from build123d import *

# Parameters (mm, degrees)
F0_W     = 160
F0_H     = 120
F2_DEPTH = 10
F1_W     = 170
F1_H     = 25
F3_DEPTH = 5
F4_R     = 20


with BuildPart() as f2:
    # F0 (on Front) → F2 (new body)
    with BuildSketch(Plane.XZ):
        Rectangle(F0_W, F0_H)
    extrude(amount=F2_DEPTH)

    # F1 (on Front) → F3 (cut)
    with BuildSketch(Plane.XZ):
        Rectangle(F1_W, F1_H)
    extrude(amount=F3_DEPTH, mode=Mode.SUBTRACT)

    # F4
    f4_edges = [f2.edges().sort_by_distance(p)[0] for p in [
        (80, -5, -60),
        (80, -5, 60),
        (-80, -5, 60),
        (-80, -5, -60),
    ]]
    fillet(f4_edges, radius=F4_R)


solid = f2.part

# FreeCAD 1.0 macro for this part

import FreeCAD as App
import Part
import Sketcher


def edges_at(feature, points):
    """Names of the edges that pass closest to the given points."""
    edges = feature.Shape.Edges
    near = lambda p: min(range(len(edges)), key=lambda i: edges[i].distToShape(Part.Vertex(*p))[0])
    return sorted({f"Edge{near(p) + 1}" for p in points})


def add_polygon(sketch, points):
    """Adds a closed chain of lines whose ends are joined by coincident constraints."""
    first, n = sketch.GeometryCount, len(points)
    for a, b in zip(points, points[1:] + points[:1]):
        sketch.addGeometry(Part.LineSegment(App.Vector(*a, 0), App.Vector(*b, 0)), False)
    for i in range(n):
        sketch.addConstraint(Sketcher.Constraint("Coincident", first + i, 2, first + (i + 1) % n, 1))

doc = App.newDocument("Part")
body = doc.addObject("PartDesign::Body", "Body")

sketch1 = doc.addObject("Sketcher::SketchObject", "Sketch")
body.addObject(sketch1)
sketch1.AttachmentSupport = (doc.XZ_Plane, [""])
sketch1.MapMode = "FlatFace"
add_polygon(sketch1, [(-80, 60), (-80, -60), (80, -60), (80, 60)])
sketch1.addConstraint([
    Sketcher.Constraint("Vertical", 0),
    Sketcher.Constraint("Horizontal", 1),
    Sketcher.Constraint("Vertical", 2),
    Sketcher.Constraint("Horizontal", 3),
    Sketcher.Constraint("Symmetric", 0, 2, 2, 2, -1, 1),
    Sketcher.Constraint("DistanceX", 1, 1, 1, 2, 160.0),
    Sketcher.Constraint("DistanceY", 0, 2, 0, 1, 120.0),
])
pad1 = doc.addObject("PartDesign::Pad", "Pad")
body.addObject(pad1)
pad1.Profile = sketch1
pad1.Length = 10

sketch2 = doc.addObject("Sketcher::SketchObject", "Sketch001")
body.addObject(sketch2)
sketch2.AttachmentSupport = (doc.XZ_Plane, [""])
sketch2.MapMode = "FlatFace"
add_polygon(sketch2, [(-85, 12), (-85, -12), (85, -12), (85, 12)])
sketch2.addConstraint([
    Sketcher.Constraint("Vertical", 0),
    Sketcher.Constraint("Horizontal", 1),
    Sketcher.Constraint("Vertical", 2),
    Sketcher.Constraint("Horizontal", 3),
    Sketcher.Constraint("Symmetric", 0, 2, 2, 2, -1, 1),
    Sketcher.Constraint("DistanceX", 1, 1, 1, 2, 170.0),
    Sketcher.Constraint("DistanceY", 0, 2, 0, 1, 25.0),
])
pocket1 = doc.addObject("PartDesign::Pocket", "Pocket")
body.addObject(pocket1)
pocket1.Profile = sketch2
pocket1.Length = 5
pocket1.Reversed = True
doc.recompute()

fillet = doc.addObject("PartDesign::Fillet", "Fillet")
body.addObject(fillet)
fillet.Base = (pocket1, edges_at(pocket1, [
    (80, -5, -60),
    (80, -5, 60),
    (-80, -5, 60),
    (-80, -5, -60),
]))
fillet.Radius = 20

doc.recompute()
